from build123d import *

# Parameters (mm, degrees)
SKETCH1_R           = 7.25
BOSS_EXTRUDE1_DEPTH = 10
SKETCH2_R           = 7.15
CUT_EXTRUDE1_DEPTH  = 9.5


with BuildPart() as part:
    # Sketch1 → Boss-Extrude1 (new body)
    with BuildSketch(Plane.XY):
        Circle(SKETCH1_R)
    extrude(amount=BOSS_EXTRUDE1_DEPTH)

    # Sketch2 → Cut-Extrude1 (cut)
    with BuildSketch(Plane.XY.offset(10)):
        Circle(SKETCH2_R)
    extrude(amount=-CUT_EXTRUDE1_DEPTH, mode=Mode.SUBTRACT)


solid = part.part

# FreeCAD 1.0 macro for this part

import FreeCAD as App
import Part
import Sketcher

doc = App.newDocument("Part")
body = doc.addObject("PartDesign::Body", "Body")

# Sketch on XY plane
sketch1 = body.newObject("Sketcher::SketchObject", "Sketch")
sketch1.AttachmentSupport = (doc.getObject("XY_Plane"), [""])
sketch1.MapMode = "FlatFace"
sketch1.addGeometry(Part.Circle(App.Vector(0, 0, 0), App.Vector(0, 0, 1), 7), False)
sketch1.addConstraint(Sketcher.Constraint("Coincident", 0, 3, -1, 1))
sketch1.addConstraint(Sketcher.Constraint("Diameter", 0, 14.5))
pad1 = body.newObject("PartDesign::Pad", "Pad")
pad1.Profile = sketch1
pad1.Length = 10

# Sketch on XY plane
sketch2 = body.newObject("Sketcher::SketchObject", "Sketch001")
sketch2.AttachmentSupport = (doc.getObject("XY_Plane"), [""])
sketch2.MapMode = "FlatFace"
sketch2.AttachmentOffset = App.Placement(App.Vector(0, 0, 10), App.Rotation())
sketch2.addGeometry(Part.Circle(App.Vector(0, 0, 0), App.Vector(0, 0, 1), 7), False)
sketch2.addConstraint(Sketcher.Constraint("Coincident", 0, 3, -1, 1))
sketch2.addConstraint(Sketcher.Constraint("Diameter", 0, 14.3))
pocket1 = body.newObject("PartDesign::Pocket", "Pocket")
pocket1.Profile = sketch2
pocket1.Length = 9.5

doc.recompute()
